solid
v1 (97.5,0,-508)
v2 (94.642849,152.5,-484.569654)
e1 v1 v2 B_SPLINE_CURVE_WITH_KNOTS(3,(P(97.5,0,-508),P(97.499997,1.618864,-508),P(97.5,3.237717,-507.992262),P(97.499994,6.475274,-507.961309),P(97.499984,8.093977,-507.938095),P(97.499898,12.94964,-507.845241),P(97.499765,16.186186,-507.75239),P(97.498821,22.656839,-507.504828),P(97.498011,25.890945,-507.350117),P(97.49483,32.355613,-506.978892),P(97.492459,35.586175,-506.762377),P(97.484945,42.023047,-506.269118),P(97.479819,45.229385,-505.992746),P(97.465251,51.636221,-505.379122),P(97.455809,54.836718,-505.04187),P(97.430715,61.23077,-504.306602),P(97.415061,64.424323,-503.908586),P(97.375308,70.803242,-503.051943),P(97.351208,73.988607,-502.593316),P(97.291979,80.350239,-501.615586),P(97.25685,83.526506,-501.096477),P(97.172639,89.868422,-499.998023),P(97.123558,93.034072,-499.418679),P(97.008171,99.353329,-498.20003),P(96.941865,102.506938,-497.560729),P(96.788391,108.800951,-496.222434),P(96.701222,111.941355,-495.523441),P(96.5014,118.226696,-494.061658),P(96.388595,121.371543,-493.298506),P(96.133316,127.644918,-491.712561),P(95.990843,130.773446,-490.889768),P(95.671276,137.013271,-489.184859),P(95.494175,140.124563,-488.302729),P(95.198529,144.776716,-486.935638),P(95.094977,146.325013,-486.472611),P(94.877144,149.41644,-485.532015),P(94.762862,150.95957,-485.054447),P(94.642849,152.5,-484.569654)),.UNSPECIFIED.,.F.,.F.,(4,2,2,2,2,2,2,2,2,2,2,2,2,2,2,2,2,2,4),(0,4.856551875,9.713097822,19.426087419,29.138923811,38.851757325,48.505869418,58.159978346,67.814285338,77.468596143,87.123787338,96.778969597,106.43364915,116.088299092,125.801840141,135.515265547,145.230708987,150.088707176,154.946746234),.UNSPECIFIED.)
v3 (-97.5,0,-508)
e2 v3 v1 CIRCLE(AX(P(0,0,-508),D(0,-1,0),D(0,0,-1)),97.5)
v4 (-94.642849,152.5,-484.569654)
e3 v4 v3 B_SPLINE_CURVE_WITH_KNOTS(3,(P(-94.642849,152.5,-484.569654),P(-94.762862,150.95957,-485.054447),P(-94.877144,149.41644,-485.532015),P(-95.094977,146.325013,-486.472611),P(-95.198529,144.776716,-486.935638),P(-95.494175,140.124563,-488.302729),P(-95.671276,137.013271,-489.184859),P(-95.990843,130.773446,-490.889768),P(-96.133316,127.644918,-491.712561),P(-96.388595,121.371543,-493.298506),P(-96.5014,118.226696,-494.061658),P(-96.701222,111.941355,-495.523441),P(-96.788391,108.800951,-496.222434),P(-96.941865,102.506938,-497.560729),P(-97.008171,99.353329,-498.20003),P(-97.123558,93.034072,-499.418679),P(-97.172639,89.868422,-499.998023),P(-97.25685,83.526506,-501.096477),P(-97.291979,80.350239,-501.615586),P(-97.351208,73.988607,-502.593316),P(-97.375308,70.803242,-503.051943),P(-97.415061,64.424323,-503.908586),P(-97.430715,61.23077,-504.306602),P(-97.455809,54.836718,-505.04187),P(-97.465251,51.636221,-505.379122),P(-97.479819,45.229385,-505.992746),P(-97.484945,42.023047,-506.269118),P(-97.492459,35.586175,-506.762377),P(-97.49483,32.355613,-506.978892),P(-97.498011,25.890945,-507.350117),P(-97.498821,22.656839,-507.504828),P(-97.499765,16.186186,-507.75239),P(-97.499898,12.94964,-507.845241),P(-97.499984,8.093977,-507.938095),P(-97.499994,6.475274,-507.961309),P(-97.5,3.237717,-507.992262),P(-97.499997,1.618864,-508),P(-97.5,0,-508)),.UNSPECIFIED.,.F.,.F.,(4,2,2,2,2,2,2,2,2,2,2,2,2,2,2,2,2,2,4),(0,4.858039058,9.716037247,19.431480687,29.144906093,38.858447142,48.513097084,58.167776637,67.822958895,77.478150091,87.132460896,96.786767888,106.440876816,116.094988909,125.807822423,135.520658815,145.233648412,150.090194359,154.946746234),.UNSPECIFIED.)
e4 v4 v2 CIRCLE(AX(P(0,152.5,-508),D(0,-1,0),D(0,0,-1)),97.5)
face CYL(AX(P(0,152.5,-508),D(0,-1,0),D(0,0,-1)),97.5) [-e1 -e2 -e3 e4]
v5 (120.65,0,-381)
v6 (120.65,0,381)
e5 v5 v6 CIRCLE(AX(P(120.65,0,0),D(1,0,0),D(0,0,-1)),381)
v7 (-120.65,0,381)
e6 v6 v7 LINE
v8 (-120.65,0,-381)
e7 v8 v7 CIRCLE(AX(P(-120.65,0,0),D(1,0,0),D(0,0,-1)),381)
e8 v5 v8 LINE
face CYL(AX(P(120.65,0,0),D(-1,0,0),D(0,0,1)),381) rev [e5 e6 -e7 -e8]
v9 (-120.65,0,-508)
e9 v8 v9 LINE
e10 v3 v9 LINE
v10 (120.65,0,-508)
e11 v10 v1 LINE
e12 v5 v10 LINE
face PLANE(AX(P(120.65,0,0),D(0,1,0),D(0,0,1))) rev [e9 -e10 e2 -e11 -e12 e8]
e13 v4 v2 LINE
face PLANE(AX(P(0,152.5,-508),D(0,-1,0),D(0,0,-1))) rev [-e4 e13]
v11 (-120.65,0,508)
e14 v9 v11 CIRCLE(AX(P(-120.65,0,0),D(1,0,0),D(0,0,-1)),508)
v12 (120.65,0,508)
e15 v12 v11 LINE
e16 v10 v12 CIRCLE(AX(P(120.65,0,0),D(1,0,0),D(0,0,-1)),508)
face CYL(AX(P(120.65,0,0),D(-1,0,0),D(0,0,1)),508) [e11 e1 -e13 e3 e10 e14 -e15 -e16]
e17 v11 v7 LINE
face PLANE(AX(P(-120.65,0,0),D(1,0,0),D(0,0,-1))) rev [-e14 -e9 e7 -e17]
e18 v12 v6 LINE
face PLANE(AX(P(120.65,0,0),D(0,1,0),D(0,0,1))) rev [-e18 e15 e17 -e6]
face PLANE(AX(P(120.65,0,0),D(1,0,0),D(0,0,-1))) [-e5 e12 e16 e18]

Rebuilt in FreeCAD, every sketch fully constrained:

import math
import FreeCAD as App
import Part
import Sketcher
Q = App.Units.Quantity

doc = App.newDocument("Part")
body = doc.addObject("PartDesign::Body", "Body")

# Sketch on YZ plane
sketch1 = body.newObject("Sketcher::SketchObject", "Sketch")
sketch1.AttachmentSupport = (doc.getObject("YZ_Plane"), [""])
sketch1.MapMode = "FlatFace"
sketch1.addGeometry([
    Part.ArcOfCircle(Part.Circle(App.Vector(0, 0, 0), App.Vector(0, 0, 1), 508), math.radians(-90), math.radians(90)),
    Part.LineSegment(App.Vector(0, 508, 0), App.Vector(0, 381, 0)),
    Part.ArcOfCircle(Part.Circle(App.Vector(0, 0, 0), App.Vector(0, 0, 1), 381), math.radians(-90), math.radians(90)),
    Part.LineSegment(App.Vector(0, -381, 0), App.Vector(0, -508, 0)),
], False)
sketch1.addConstraint([
    Sketcher.Constraint("Coincident", 0, 2, 1, 1),
    Sketcher.Constraint("Coincident", 1, 2, 2, 2),
    Sketcher.Constraint("Coincident", 2, 1, 3, 1),
    Sketcher.Constraint("Coincident", 3, 2, 0, 1),
    Sketcher.Constraint("Vertical", 1),
    Sketcher.Constraint("Vertical", 3),
    Sketcher.Constraint("Coincident", 0, 3, -1, 1),
    Sketcher.Constraint("Coincident", 2, 3, -1, 1),
    Sketcher.Constraint("PointOnObject", 1, 2, -2),
    Sketcher.Constraint("PointOnObject", 3, 2, -2),
    Sketcher.Constraint("Radius", 0, Q("20 in")),
    Sketcher.Constraint("Radius", 2, Q("15 in")),
])
pad1 = body.newObject("PartDesign::Pad", "Pad")
pad1.Profile = sketch1
pad1.Length = Q("9.5 in")
pad1.Midplane = True

# Sketch on XZ plane
sketch2 = body.newObject("Sketcher::SketchObject", "Sketch001")
sketch2.AttachmentSupport = (doc.getObject("XZ_Plane"), [""])
sketch2.MapMode = "FlatFace"
sketch2.addGeometry(Part.Circle(App.Vector(0, -508, 0), App.Vector(0, 0, 1), 98), False)
sketch2.addConstraint([
    Sketcher.Constraint("PointOnObject", 0, 3, -2),
    Sketcher.Constraint("DistanceY", 0, 3, -1, 1, Q("20 in")),
    Sketcher.Constraint("Diameter", 0, 195.0),
])
pad2 = body.newObject("PartDesign::Pad", "Pad001")
pad2.Profile = sketch2
pad2.Length = 152.5
pad2.Reversed = True

doc.recompute()
